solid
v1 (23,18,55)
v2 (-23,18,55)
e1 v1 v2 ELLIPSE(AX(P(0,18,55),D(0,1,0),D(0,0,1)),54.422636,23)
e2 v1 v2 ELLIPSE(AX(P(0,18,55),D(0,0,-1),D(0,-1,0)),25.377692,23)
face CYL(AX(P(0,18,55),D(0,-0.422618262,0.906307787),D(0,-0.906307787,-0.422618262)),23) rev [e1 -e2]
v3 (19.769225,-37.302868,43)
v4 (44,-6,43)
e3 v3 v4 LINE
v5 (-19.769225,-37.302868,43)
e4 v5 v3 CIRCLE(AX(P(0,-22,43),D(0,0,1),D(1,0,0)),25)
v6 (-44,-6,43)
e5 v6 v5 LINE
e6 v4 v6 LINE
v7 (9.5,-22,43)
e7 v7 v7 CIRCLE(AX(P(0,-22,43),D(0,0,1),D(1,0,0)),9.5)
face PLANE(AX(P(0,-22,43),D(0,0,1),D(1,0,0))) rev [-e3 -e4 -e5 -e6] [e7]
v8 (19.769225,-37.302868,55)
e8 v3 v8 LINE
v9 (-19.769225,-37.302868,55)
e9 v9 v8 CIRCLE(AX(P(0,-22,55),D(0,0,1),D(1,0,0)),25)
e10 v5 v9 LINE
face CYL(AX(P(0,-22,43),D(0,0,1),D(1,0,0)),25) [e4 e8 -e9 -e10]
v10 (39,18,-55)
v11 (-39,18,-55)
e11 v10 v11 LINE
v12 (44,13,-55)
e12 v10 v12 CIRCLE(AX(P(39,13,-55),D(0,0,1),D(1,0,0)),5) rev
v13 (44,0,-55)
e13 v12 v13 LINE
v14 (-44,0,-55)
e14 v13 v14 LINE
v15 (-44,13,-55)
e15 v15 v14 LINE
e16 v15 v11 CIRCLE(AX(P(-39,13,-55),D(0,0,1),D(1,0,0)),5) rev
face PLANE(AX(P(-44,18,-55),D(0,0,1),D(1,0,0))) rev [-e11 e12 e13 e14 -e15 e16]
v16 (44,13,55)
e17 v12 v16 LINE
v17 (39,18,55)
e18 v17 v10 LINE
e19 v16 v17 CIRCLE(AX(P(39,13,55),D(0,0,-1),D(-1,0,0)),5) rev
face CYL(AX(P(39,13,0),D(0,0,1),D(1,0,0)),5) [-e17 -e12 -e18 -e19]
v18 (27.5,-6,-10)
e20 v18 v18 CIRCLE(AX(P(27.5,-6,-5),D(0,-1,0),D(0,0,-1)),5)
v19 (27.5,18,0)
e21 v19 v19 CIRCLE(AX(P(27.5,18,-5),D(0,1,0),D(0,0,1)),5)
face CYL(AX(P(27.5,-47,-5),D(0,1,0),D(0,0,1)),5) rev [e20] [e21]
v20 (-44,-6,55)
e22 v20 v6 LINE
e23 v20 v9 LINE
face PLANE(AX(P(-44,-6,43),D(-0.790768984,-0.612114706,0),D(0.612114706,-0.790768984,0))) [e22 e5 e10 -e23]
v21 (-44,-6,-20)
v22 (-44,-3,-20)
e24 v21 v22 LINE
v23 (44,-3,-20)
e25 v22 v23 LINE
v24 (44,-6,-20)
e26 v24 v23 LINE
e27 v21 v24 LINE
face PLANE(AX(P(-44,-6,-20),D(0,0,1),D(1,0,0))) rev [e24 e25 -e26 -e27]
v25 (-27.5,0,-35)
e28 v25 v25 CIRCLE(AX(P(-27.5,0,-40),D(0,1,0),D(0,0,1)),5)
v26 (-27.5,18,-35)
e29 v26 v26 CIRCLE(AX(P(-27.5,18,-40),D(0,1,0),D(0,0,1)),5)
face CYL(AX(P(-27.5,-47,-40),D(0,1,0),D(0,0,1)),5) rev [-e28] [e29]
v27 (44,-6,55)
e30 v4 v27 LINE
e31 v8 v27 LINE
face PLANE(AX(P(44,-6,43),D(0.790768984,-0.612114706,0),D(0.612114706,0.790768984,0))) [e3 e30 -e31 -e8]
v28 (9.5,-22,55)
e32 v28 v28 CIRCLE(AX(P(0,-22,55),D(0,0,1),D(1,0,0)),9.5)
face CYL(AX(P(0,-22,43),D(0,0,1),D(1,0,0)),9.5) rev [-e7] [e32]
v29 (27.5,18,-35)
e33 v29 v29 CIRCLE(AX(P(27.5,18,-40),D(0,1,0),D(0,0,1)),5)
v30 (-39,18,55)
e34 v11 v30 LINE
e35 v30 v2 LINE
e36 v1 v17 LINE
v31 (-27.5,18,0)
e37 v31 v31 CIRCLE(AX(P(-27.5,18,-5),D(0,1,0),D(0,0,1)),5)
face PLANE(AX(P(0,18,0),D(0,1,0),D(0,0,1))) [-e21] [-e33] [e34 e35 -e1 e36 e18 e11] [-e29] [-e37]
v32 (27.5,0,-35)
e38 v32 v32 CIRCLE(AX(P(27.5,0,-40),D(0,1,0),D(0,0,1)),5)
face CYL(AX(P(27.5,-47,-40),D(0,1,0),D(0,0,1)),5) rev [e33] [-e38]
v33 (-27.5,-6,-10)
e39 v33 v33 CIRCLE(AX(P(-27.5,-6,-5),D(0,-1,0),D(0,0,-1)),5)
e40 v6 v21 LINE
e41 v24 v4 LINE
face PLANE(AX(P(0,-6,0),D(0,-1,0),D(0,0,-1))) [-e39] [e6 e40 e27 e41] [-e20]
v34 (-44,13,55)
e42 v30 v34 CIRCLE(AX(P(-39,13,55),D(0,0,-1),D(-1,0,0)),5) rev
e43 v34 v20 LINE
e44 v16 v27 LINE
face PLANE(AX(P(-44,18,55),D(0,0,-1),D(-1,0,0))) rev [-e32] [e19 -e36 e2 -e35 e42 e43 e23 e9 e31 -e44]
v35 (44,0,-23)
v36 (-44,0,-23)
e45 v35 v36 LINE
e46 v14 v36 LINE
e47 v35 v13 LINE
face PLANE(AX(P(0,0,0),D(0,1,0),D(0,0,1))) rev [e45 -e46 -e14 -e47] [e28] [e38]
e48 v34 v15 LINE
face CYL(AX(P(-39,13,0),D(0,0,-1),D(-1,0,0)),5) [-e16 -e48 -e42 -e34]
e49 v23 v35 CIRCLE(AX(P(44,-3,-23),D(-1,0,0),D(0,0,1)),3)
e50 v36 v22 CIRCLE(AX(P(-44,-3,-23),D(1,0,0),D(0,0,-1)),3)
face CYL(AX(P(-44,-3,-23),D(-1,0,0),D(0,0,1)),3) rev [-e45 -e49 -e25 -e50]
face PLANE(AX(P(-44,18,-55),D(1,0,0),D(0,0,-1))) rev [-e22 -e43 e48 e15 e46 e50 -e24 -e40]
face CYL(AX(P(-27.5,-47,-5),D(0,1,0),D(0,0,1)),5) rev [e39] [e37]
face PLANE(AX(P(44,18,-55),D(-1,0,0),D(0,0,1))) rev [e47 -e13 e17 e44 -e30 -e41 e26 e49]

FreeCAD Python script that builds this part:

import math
import FreeCAD as App
import Part
import Sketcher
from FreeCAD import Vector
Q = App.Units.Quantity


def edges_at(feature, points):
    """Names of the edges that pass closest to the given points."""
    edges = feature.Shape.Edges
    near = lambda p: min(range(len(edges)), key=lambda i: edges[i].distToShape(Part.Vertex(*p))[0])
    return sorted({f"Edge{near(p) + 1}" for p in points})


def add_polygon(sketch, points):
    """Adds a closed chain of lines whose ends are joined by coincident constraints."""
    first, n = sketch.GeometryCount, len(points)
    for a, b in zip(points, points[1:] + points[:1]):
        sketch.addGeometry(Part.LineSegment(App.Vector(*a, 0), App.Vector(*b, 0)), False)
    for i in range(n):
        sketch.addConstraint(Sketcher.Constraint("Coincident", first + i, 2, first + (i + 1) % n, 1))

doc = App.newDocument("Part")
body = doc.addObject("PartDesign::Body", "Body")

sketch1 = body.newObject("Sketcher::SketchObject", "Sketch")
sketch1.AttachmentSupport = (doc.getObject("XZ_Plane"), [""])
sketch1.MapMode = "FlatFace"
add_polygon(sketch1, [(-44, -55), (-44, 55), (44, 55), (44, -55)])
sketch1.addConstraint([
    Sketcher.Constraint("Vertical", 0),
    Sketcher.Constraint("Horizontal", 1),
    Sketcher.Constraint("Vertical", 2),
    Sketcher.Constraint("Horizontal", 3),
    Sketcher.Constraint("Symmetric", 0, 2, 2, 2, -1, 1),
    Sketcher.Constraint("DistanceX", 1, 1, 1, 2, 88.0),
    Sketcher.Constraint("DistanceY", 0, 1, 0, 2, 110.0),
])
pad1 = body.newObject("PartDesign::Pad", "Pad")
pad1.Profile = sketch1
pad1.Length = 18
pad1.Reversed = True

sketch2 = body.newObject("Sketcher::SketchObject", "Sketch001")
sketch2.AttachmentSupport = (doc.getObject("XZ_Plane"), [""])
sketch2.MapMode = "FlatFace"
add_polygon(sketch2, [(-44, 55), (-44, -20), (44, -20), (44, 55)])
sketch2.addConstraint([
    Sketcher.Constraint("Vertical", 0),
    Sketcher.Constraint("Horizontal", 1),
    Sketcher.Constraint("Vertical", 2),
    Sketcher.Constraint("Horizontal", 3),
    Sketcher.Constraint("DistanceX", 1, 1, 1, 2, 88.0),
    Sketcher.Constraint("DistanceY", 0, 2, 0, 1, 75.0),
    Sketcher.Constraint("DistanceX", 0, 2, -1, 1, 44.0),
    Sketcher.Constraint("DistanceY", 0, 2, -1, 1, 20.0),
])
pad2 = body.newObject("PartDesign::Pad", "Pad001")
pad2.Profile = sketch2
pad2.Length = 6

sketch3 = body.newObject("Sketcher::SketchObject", "Sketch002")
sketch3.AttachmentSupport = (doc.getObject("XY_Plane"), [""])
sketch3.MapMode = "FlatFace"
sketch3.AttachmentOffset = App.Placement(Vector(0, 0, 55), App.Rotation())
sketch3.addGeometry([
    Part.LineSegment(Vector(-44, -6, 0), Vector(-20, -37, 0)),
    Part.ArcOfCircle(Part.Circle(Vector(0, -22, 0), Vector(0, 0, 1), 25), math.radians(-142), math.radians(-38)),
    Part.LineSegment(Vector(20, -37, 0), Vector(44, -6, 0)),
    Part.LineSegment(Vector(44, -6, 0), Vector(-44, -6, 0)),
    Part.Circle(Vector(0, -22, 0), Vector(0, 0, 1), 10),
], False)
sketch3.addConstraint([
    Sketcher.Constraint("Tangent", 0, 2, 1, 1),
    Sketcher.Constraint("Tangent", 1, 2, 2, 1),
    Sketcher.Constraint("Coincident", 2, 2, 3, 1),
    Sketcher.Constraint("Coincident", 3, 2, 0, 1),
    Sketcher.Constraint("Horizontal", 3),
    Sketcher.Constraint("Coincident", 4, 3, 1, 3),
    Sketcher.Constraint("Symmetric", 0, 2, 1, 2, -2),
    Sketcher.Constraint("Diameter", 4, 19.0),
    Sketcher.Constraint("Radius", 1, 25.0),
    Sketcher.Constraint("DistanceX", 3, 2, 3, 1, 88.0),
    Sketcher.Constraint("DistanceY", 1, 3, -1, 1, 22.0),
    Sketcher.Constraint("DistanceY", 2, 2, -1, 1, 6.0),
])
pad3 = body.newObject("PartDesign::Pad", "Pad002")
pad3.Profile = sketch3
pad3.Length = 12
pad3.Reversed = True
doc.recompute()

fillet = body.newObject("PartDesign::Fillet", "Fillet")
fillet.Base = (pad3, edges_at(pad3, [(0, 0, -20)]))
fillet.Radius = 3

sketch4 = body.newObject("Sketcher::SketchObject", "Sketch003")
sketch4.AttachmentSupport = (doc.getObject("YZ_Plane"), [""])
sketch4.MapMode = "FlatFace"
add_polygon(sketch4, [(-7, 55), (18, 1), (43, 1), (18, 55)])
sketch4.addGeometry(Part.LineSegment(Vector(13, 65, 0), Vector(43, 1, 0)), True)
sketch4.addConstraint([
    Sketcher.Constraint("Horizontal", 1),
    Sketcher.Constraint("Horizontal", 3),
    Sketcher.Constraint("Coincident", 4, 2, 1, 2),
    Sketcher.Constraint("Parallel", 0, 2),
    Sketcher.Constraint("Parallel", 2, 4),
    Sketcher.Constraint("Vertical", 0, 2, 2, 2),
    Sketcher.Constraint("Angle", 0, Q("-65 deg")),
    Sketcher.Constraint("DistanceX", -1, 1, 0, 2, 18.0),
    Sketcher.Constraint("DistanceY", -1, 1, 2, 2, 55.0),
    Sketcher.Constraint("Distance", 4, 70.773811),
    Sketcher.Constraint("DistanceX", 1, 1, 1, 2, 25.377692),
])
groove = body.newObject("PartDesign::Groove", "Groove")
groove.Profile = sketch4
groove.ReferenceAxis = (sketch4, ["Axis0"])
groove.Angle = 360
doc.recompute()

fillet2 = body.newObject("PartDesign::Fillet", "Fillet001")
fillet2.Base = (groove, edges_at(groove, [(-44, 18, 0), (44, 18, 0)]))
fillet2.Radius = 5

sketch5 = body.newObject("Sketcher::SketchObject", "Sketch004")
sketch5.AttachmentSupport = (doc.getObject("XZ_Plane"), [""])
sketch5.MapMode = "FlatFace"
sketch5.AttachmentOffset = App.Placement(Vector(0, 0, -18), App.Rotation())
sketch5.addGeometry([
    Part.Circle(Vector(-28, -40, 0), Vector(0, 0, 1), 5),
    Part.Circle(Vector(28, -40, 0), Vector(0, 0, 1), 5),
    Part.Circle(Vector(28, -5, 0), Vector(0, 0, 1), 5),
    Part.Circle(Vector(-28, -5, 0), Vector(0, 0, 1), 5),
], False)
sketch5.addConstraint([
    Sketcher.Constraint("Equal", 0, 1),
    Sketcher.Constraint("Equal", 1, 2),
    Sketcher.Constraint("Equal", 2, 3),
    Sketcher.Constraint("Symmetric", 0, 3, 1, 3, -2),
    Sketcher.Constraint("Symmetric", 2, 3, 3, 3, -2),
    Sketcher.Constraint("Vertical", 1, 3, 2, 3),
    Sketcher.Constraint("Diameter", 0, 10.0),
    Sketcher.Constraint("DistanceY", 0, 3, -1, 1, 40.0),
    Sketcher.Constraint("DistanceY", 2, 3, -1, 1, 5.0),
    Sketcher.Constraint("DistanceX", 0, 3, 1, 3, 55.0),
])
pocket1 = body.newObject("PartDesign::Pocket", "Pocket")
pocket1.Profile = sketch5
pocket1.Type = "ThroughAll"
pocket1.Midplane = True

doc.recompute()
